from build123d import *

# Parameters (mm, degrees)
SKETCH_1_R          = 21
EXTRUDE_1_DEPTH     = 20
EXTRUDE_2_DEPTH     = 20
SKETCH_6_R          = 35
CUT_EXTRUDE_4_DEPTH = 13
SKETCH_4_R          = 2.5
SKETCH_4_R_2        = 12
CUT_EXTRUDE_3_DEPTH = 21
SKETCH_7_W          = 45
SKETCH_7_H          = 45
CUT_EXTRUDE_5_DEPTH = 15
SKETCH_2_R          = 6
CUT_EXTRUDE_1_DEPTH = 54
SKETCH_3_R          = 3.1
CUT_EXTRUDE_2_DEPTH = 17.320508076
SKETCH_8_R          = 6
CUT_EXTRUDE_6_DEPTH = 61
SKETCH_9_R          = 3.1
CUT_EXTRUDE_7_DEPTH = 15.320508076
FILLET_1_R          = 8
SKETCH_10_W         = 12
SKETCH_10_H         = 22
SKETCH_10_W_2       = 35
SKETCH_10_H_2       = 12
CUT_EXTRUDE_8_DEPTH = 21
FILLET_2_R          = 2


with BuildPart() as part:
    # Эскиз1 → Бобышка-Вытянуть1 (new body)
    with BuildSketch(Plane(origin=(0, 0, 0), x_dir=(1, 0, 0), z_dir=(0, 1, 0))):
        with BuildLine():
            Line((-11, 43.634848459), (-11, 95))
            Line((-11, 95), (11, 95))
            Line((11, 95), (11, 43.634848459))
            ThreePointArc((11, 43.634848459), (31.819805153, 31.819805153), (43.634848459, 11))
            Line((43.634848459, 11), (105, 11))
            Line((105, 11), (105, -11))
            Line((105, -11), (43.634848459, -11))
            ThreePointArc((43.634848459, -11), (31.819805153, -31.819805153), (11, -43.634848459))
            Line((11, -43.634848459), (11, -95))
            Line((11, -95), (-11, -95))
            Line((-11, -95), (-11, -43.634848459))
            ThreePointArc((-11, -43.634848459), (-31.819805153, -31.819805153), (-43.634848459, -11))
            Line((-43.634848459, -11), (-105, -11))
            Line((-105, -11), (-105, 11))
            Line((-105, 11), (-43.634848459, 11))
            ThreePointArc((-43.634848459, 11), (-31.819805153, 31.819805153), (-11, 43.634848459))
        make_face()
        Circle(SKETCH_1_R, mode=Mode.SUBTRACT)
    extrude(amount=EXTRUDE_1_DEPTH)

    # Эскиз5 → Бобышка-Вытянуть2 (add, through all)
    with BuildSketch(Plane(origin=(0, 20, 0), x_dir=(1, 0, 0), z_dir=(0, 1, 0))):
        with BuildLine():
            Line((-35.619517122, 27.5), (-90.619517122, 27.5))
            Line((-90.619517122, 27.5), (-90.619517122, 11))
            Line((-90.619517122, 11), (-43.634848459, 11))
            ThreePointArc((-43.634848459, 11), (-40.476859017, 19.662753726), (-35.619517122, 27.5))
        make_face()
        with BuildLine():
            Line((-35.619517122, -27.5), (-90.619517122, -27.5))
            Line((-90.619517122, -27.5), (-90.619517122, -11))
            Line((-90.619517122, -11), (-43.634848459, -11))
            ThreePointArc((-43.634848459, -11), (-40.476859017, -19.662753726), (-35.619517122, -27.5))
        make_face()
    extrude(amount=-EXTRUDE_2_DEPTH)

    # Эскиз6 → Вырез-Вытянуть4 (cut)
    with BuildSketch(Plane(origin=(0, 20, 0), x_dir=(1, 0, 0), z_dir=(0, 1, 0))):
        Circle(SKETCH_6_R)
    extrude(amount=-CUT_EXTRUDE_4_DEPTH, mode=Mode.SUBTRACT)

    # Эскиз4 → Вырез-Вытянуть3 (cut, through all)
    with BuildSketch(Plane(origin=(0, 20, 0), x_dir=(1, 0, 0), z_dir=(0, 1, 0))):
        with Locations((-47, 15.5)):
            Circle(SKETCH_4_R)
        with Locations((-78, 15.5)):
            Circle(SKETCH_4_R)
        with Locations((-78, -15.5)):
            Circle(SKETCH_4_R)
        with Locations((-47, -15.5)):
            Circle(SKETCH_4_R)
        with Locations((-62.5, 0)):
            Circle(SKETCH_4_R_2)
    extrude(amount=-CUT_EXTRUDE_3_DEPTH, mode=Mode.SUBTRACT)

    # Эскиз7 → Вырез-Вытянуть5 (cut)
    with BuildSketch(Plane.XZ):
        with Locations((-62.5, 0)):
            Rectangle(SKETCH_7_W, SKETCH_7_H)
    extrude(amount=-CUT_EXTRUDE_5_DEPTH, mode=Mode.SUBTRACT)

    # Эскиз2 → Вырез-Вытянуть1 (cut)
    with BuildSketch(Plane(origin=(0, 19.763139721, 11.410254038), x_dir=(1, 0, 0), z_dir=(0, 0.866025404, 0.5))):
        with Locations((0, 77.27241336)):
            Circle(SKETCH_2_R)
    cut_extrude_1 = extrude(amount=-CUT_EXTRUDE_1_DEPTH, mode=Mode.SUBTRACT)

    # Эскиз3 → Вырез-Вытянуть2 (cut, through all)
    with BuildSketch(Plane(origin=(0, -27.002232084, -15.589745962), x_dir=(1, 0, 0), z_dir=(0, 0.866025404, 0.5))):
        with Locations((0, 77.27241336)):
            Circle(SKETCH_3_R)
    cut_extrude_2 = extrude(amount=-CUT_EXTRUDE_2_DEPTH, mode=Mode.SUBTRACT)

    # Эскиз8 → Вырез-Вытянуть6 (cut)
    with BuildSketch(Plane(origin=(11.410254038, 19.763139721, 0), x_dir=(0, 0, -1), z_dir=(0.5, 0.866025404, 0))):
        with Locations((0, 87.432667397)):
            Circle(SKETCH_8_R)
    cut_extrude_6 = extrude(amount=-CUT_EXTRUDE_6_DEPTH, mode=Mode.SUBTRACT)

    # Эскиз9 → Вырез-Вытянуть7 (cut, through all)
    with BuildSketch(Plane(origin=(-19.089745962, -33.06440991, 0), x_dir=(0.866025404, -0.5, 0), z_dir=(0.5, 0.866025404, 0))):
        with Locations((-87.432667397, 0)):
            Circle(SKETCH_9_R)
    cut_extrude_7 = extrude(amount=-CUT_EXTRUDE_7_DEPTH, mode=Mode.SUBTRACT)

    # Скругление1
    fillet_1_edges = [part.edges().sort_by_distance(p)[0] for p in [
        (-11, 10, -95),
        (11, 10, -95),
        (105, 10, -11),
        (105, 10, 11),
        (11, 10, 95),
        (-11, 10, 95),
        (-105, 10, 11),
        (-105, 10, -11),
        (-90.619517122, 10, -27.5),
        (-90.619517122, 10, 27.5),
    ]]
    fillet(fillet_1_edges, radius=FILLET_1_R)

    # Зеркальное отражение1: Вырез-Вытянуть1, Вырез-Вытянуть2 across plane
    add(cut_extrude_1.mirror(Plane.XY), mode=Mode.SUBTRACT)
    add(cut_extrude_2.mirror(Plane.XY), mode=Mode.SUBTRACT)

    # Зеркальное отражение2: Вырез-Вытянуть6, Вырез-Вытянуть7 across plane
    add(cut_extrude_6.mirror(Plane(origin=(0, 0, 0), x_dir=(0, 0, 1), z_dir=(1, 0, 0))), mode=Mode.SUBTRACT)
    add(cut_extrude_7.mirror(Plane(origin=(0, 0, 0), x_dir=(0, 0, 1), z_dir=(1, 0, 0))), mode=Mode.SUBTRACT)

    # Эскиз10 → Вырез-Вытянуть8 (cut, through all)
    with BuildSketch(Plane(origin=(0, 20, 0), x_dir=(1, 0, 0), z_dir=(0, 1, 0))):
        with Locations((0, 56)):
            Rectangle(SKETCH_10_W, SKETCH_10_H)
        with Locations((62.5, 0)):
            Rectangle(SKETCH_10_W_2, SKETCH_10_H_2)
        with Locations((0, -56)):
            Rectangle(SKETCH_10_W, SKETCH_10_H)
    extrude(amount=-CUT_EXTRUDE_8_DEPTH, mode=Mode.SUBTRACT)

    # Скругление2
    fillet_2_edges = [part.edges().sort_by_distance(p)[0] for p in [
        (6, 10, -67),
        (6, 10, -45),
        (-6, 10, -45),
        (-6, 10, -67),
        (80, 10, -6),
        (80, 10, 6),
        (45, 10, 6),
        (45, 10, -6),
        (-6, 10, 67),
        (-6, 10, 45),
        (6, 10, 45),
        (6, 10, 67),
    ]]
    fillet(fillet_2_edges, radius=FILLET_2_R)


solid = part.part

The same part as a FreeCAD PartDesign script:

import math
import FreeCAD as App
import Part
import Sketcher
from FreeCAD import Vector
Q = App.Units.Quantity


def edges_at(feature, points):
    """Names of the edges that pass closest to the given points."""
    edges = feature.Shape.Edges
    near = lambda p: min(range(len(edges)), key=lambda i: edges[i].distToShape(Part.Vertex(*p))[0])
    return sorted({f"Edge{near(p) + 1}" for p in points})


def add_polygon(sketch, points):
    """Adds a closed chain of lines whose ends are joined by coincident constraints."""
    first, n = sketch.GeometryCount, len(points)
    for a, b in zip(points, points[1:] + points[:1]):
        sketch.addGeometry(Part.LineSegment(App.Vector(*a, 0), App.Vector(*b, 0)), False)
    for i in range(n):
        sketch.addConstraint(Sketcher.Constraint("Coincident", first + i, 2, first + (i + 1) % n, 1))

doc = App.newDocument("Part")
body = doc.addObject("PartDesign::Body", "Body")

# Sketch on XZ plane
sketch1 = doc.addObject("Sketcher::SketchObject", "Sketch")
body.addObject(sketch1)
sketch1.AttachmentSupport = (doc.XZ_Plane, [""])
sketch1.MapMode = "FlatFace"
sketch1.addGeometry(Part.LineSegment(Vector(-11, -95, 0), Vector(-11, -43.634848, 0)), False)
sketch1.addGeometry(Part.ArcOfCircle(Part.Circle(Vector(0, 0, 0), Vector(0, 0, 1), 45), math.radians(-165.850995), math.radians(-104.149005)), False)
sketch1.addGeometry(Part.LineSegment(Vector(-43.634848, -11, 0), Vector(-105, -11, 0)), False)
sketch1.addGeometry(Part.LineSegment(Vector(-105, -11, 0), Vector(-105, 11, 0)), False)
sketch1.addGeometry(Part.LineSegment(Vector(-105, 11, 0), Vector(-43.634848, 11, 0)), False)
sketch1.addGeometry(Part.ArcOfCircle(Part.Circle(Vector(0, 0, 0), Vector(0, 0, 1), 45), math.radians(104.149005), math.radians(165.850995)), False)
sketch1.addGeometry(Part.LineSegment(Vector(-11, 43.634848, 0), Vector(-11, 95, 0)), False)
sketch1.addGeometry(Part.LineSegment(Vector(-11, 95, 0), Vector(11, 95, 0)), False)
sketch1.addGeometry(Part.LineSegment(Vector(11, 95, 0), Vector(11, 43.634848, 0)), False)
sketch1.addGeometry(Part.ArcOfCircle(Part.Circle(Vector(0, 0, 0), Vector(0, 0, 1), 45), math.radians(14.149005), math.radians(75.850995)), False)
sketch1.addGeometry(Part.LineSegment(Vector(43.634848, 11, 0), Vector(105, 11, 0)), False)
sketch1.addGeometry(Part.LineSegment(Vector(105, 11, 0), Vector(105, -11, 0)), False)
sketch1.addGeometry(Part.LineSegment(Vector(105, -11, 0), Vector(43.634848, -11, 0)), False)
sketch1.addGeometry(Part.ArcOfCircle(Part.Circle(Vector(0, 0, 0), Vector(0, 0, 1), 45), math.radians(-75.850995), math.radians(-14.149005)), False)
sketch1.addGeometry(Part.LineSegment(Vector(11, -43.634848, 0), Vector(11, -95, 0)), False)
sketch1.addGeometry(Part.LineSegment(Vector(11, -95, 0), Vector(-11, -95, 0)), False)
sketch1.addGeometry(Part.Circle(Vector(0, 0, 0), Vector(0, 0, 1), 21), False)
sketch1.addConstraint(Sketcher.Constraint("Coincident", 0, 2, 1, 2))
sketch1.addConstraint(Sketcher.Constraint("Coincident", 1, 1, 2, 1))
sketch1.addConstraint(Sketcher.Constraint("Coincident", 2, 2, 3, 1))
sketch1.addConstraint(Sketcher.Constraint("Coincident", 3, 2, 4, 1))
sketch1.addConstraint(Sketcher.Constraint("Coincident", 4, 2, 5, 2))
sketch1.addConstraint(Sketcher.Constraint("Coincident", 5, 1, 6, 1))
sketch1.addConstraint(Sketcher.Constraint("Coincident", 6, 2, 7, 1))
sketch1.addConstraint(Sketcher.Constraint("Coincident", 7, 2, 8, 1))
sketch1.addConstraint(Sketcher.Constraint("Coincident", 8, 2, 9, 2))
sketch1.addConstraint(Sketcher.Constraint("Coincident", 9, 1, 10, 1))
sketch1.addConstraint(Sketcher.Constraint("Coincident", 10, 2, 11, 1))
sketch1.addConstraint(Sketcher.Constraint("Coincident", 11, 2, 12, 1))
sketch1.addConstraint(Sketcher.Constraint("Coincident", 12, 2, 13, 2))
sketch1.addConstraint(Sketcher.Constraint("Coincident", 13, 1, 14, 1))
sketch1.addConstraint(Sketcher.Constraint("Coincident", 14, 2, 15, 1))
sketch1.addConstraint(Sketcher.Constraint("Coincident", 15, 2, 0, 1))
sketch1.addConstraint(Sketcher.Constraint("Vertical", 0))
sketch1.addConstraint(Sketcher.Constraint("Horizontal", 2))
sketch1.addConstraint(Sketcher.Constraint("Vertical", 3))
sketch1.addConstraint(Sketcher.Constraint("Horizontal", 4))
sketch1.addConstraint(Sketcher.Constraint("Vertical", 6))
sketch1.addConstraint(Sketcher.Constraint("Horizontal", 7))
sketch1.addConstraint(Sketcher.Constraint("Vertical", 8))
sketch1.addConstraint(Sketcher.Constraint("Horizontal", 10))
sketch1.addConstraint(Sketcher.Constraint("Vertical", 11))
sketch1.addConstraint(Sketcher.Constraint("Horizontal", 12))
sketch1.addConstraint(Sketcher.Constraint("Vertical", 14))
sketch1.addConstraint(Sketcher.Constraint("Horizontal", 15))
sketch1.addConstraint(Sketcher.Constraint("Coincident", 1, 3, -1, 1))
sketch1.addConstraint(Sketcher.Constraint("Coincident", 5, 3, -1, 1))
sketch1.addConstraint(Sketcher.Constraint("Coincident", 9, 3, -1, 1))
sketch1.addConstraint(Sketcher.Constraint("Coincident", 13, 3, -1, 1))
sketch1.addConstraint(Sketcher.Constraint("Coincident", 16, 3, -1, 1))
sketch1.addConstraint(Sketcher.Constraint("Equal", 1, 5))
sketch1.addConstraint(Sketcher.Constraint("Equal", 5, 9))
sketch1.addConstraint(Sketcher.Constraint("Equal", 9, 13))
sketch1.addConstraint(Sketcher.Constraint("Symmetric", 2, 2, 10, 2, -1, 1))
sketch1.addConstraint(Sketcher.Constraint("Symmetric", 6, 2, 14, 2, -1, 1))
sketch1.addConstraint(Sketcher.Constraint("Horizontal", 5, 1, 8, 2))
sketch1.addConstraint(Sketcher.Constraint("Horizontal", 4, 2, 9, 1))
sketch1.addConstraint(Sketcher.Constraint("Horizontal", 2, 2, 11, 2))
sketch1.addConstraint(Sketcher.Constraint("Horizontal", 0, 2, 13, 1))
sketch1.addConstraint(Sketcher.Constraint("Equal", 15, 3))
sketch1.addConstraint(Sketcher.Constraint("Diameter", 16, Q("42 mm")))
sketch1.addConstraint(Sketcher.Constraint("Radius", 1, Q("45 mm")))
sketch1.addConstraint(Sketcher.Constraint("DistanceX", 7, 1, 7, 2, Q("22 mm")))
sketch1.addConstraint(Sketcher.Constraint("DistanceX", 2, 2, -1, 1, Q("105 mm")))
sketch1.addConstraint(Sketcher.Constraint("DistanceY", -1, 1, 6, 2, Q("95 mm")))
pad1 = doc.addObject("PartDesign::Pad", "Pad")
body.addObject(pad1)
pad1.Profile = sketch1
pad1.Length = 20
pad1.Reversed = True

# Sketch on XZ plane
sketch2 = doc.addObject("Sketcher::SketchObject", "Sketch001")
body.addObject(sketch2)
sketch2.AttachmentSupport = (doc.XZ_Plane, [""])
sketch2.MapMode = "FlatFace"
sketch2.AttachmentOffset = App.Placement(Vector(0, 0, -20), App.Rotation())
sketch2.addGeometry(Part.LineSegment(Vector(-35.619517, -27.5, 0), Vector(-90.619517, -27.5, 0)), False)
sketch2.addGeometry(Part.LineSegment(Vector(-90.619517, -27.5, 0), Vector(-90.619517, -11, 0)), False)
sketch2.addGeometry(Part.LineSegment(Vector(-90.619517, -11, 0), Vector(-43.634848, -11, 0)), False)
sketch2.addGeometry(Part.ArcOfCircle(Part.Circle(Vector(0, 0, 0), Vector(0, 0, 1), 45), math.radians(-165.850995), math.radians(-142.330113)), False)
sketch2.addGeometry(Part.LineSegment(Vector(-90.619517, 27.5, 0), Vector(-35.619517, 27.5, 0)), False)
sketch2.addGeometry(Part.ArcOfCircle(Part.Circle(Vector(0, 0, 0), Vector(0, 0, 1), 45), math.radians(142.330113), math.radians(165.850995)), False)
sketch2.addGeometry(Part.LineSegment(Vector(-43.634848, 11, 0), Vector(-90.619517, 11, 0)), False)
sketch2.addGeometry(Part.LineSegment(Vector(-90.619517, 11, 0), Vector(-90.619517, 27.5, 0)), False)
sketch2.addConstraint(Sketcher.Constraint("Coincident", 0, 2, 1, 1))
sketch2.addConstraint(Sketcher.Constraint("Coincident", 1, 2, 2, 1))
sketch2.addConstraint(Sketcher.Constraint("Coincident", 2, 2, 3, 1))
sketch2.addConstraint(Sketcher.Constraint("Coincident", 3, 2, 0, 1))
sketch2.addConstraint(Sketcher.Constraint("Coincident", 4, 2, 5, 1))
sketch2.addConstraint(Sketcher.Constraint("Coincident", 5, 2, 6, 1))
sketch2.addConstraint(Sketcher.Constraint("Coincident", 6, 2, 7, 1))
sketch2.addConstraint(Sketcher.Constraint("Coincident", 7, 2, 4, 1))
sketch2.addConstraint(Sketcher.Constraint("Horizontal", 0))
sketch2.addConstraint(Sketcher.Constraint("Vertical", 1))
sketch2.addConstraint(Sketcher.Constraint("Horizontal", 2))
sketch2.addConstraint(Sketcher.Constraint("Horizontal", 4))
sketch2.addConstraint(Sketcher.Constraint("Horizontal", 6))
sketch2.addConstraint(Sketcher.Constraint("Vertical", 7))
sketch2.addConstraint(Sketcher.Constraint("Coincident", 3, 3, -1, 1))
sketch2.addConstraint(Sketcher.Constraint("Coincident", 5, 3, -1, 1))
sketch2.addConstraint(Sketcher.Constraint("Equal", 3, 5))
sketch2.addConstraint(Sketcher.Constraint("Symmetric", 1, 2, 6, 2, -1))
sketch2.addConstraint(Sketcher.Constraint("Vertical", 3, 2, 4, 2))
sketch2.addConstraint(Sketcher.Constraint("Radius", 3, Q("45 mm")))
sketch2.addConstraint(Sketcher.Constraint("DistanceX", 0, 2, 0, 1, Q("55 mm")))
sketch2.addConstraint(Sketcher.Constraint("DistanceY", 1, 1, 1, 2, Q("16.5 mm")))
sketch2.addConstraint(Sketcher.Constraint("DistanceY", 1, 2, -1, 1, Q("11 mm")))
pad2 = doc.addObject("PartDesign::Pad", "Pad001")
body.addObject(pad2)
pad2.Profile = sketch2
pad2.Type = "UpToLast"

# Sketch on XZ plane
sketch3 = doc.addObject("Sketcher::SketchObject", "Sketch002")
body.addObject(sketch3)
sketch3.AttachmentSupport = (doc.XZ_Plane, [""])
sketch3.MapMode = "FlatFace"
sketch3.AttachmentOffset = App.Placement(Vector(0, 0, -20), App.Rotation())
sketch3.addGeometry(Part.Circle(Vector(0, 0, 0), Vector(0, 0, 1), 35), False)
sketch3.addConstraint(Sketcher.Constraint("Coincident", 0, 3, -1, 1))
sketch3.addConstraint(Sketcher.Constraint("Diameter", 0, Q("70 mm")))
pocket1 = doc.addObject("PartDesign::Pocket", "Pocket")
body.addObject(pocket1)
pocket1.Profile = sketch3
pocket1.Length = 13
pocket1.Reversed = True

# Sketch on XZ plane
sketch4 = doc.addObject("Sketcher::SketchObject", "Sketch003")
body.addObject(sketch4)
sketch4.AttachmentSupport = (doc.XZ_Plane, [""])
sketch4.MapMode = "FlatFace"
sketch4.AttachmentOffset = App.Placement(Vector(0, 0, -20), App.Rotation())
sketch4.addGeometry(Part.Circle(Vector(-47, -15.5, 0), Vector(0, 0, 1), 2.5), False)
sketch4.addGeometry(Part.Circle(Vector(-78, -15.5, 0), Vector(0, 0, 1), 2.5), False)
sketch4.addGeometry(Part.Circle(Vector(-78, 15.5, 0), Vector(0, 0, 1), 2.5), False)
sketch4.addGeometry(Part.Circle(Vector(-47, 15.5, 0), Vector(0, 0, 1), 2.5), False)
sketch4.addGeometry(Part.Circle(Vector(-62.5, 0, 0), Vector(0, 0, 1), 12), False)
sketch4.addConstraint(Sketcher.Constraint("Equal", 0, 1))
sketch4.addConstraint(Sketcher.Constraint("Equal", 1, 2))
sketch4.addConstraint(Sketcher.Constraint("Equal", 2, 3))
sketch4.addConstraint(Sketcher.Constraint("Symmetric", 1, 3, 2, 3, -1))
sketch4.addConstraint(Sketcher.Constraint("Symmetric", 0, 3, 3, 3, -1))
sketch4.addConstraint(Sketcher.Constraint("PointOnObject", 4, 3, -1))
sketch4.addConstraint(Sketcher.Constraint("Horizontal", 0, 3, 1, 3))
sketch4.addConstraint(Sketcher.Constraint("Diameter", 0, Q("5 mm")))
sketch4.addConstraint(Sketcher.Constraint("Diameter", 4, Q("24 mm")))
sketch4.addConstraint(Sketcher.Constraint("DistanceX", 0, 3, -1, 1, Q("47 mm")))
sketch4.addConstraint(Sketcher.Constraint("DistanceX", 1, 3, -1, 1, Q("78 mm")))
sketch4.addConstraint(Sketcher.Constraint("DistanceY", 1, 3, 2, 3, Q("31 mm")))
sketch4.addConstraint(Sketcher.Constraint("DistanceX", 4, 3, -1, 1, Q("62.5 mm")))
pocket2 = doc.addObject("PartDesign::Pocket", "Pocket001")
body.addObject(pocket2)
pocket2.Profile = sketch4
pocket2.Type = "ThroughAll"
pocket2.Reversed = True

# Sketch on XZ plane
sketch5 = doc.addObject("Sketcher::SketchObject", "Sketch004")
body.addObject(sketch5)
sketch5.AttachmentSupport = (doc.XZ_Plane, [""])
sketch5.MapMode = "FlatFace"
add_polygon(sketch5, [(-85, 22.5), (-85, -22.5), (-40, -22.5), (-40, 22.5)])  # lines 0-3
sketch5.addConstraint(Sketcher.Constraint("Vertical", 0))
sketch5.addConstraint(Sketcher.Constraint("Horizontal", 1))
sketch5.addConstraint(Sketcher.Constraint("Vertical", 2))
sketch5.addConstraint(Sketcher.Constraint("Horizontal", 3))
sketch5.addConstraint(Sketcher.Constraint("Equal", 3, 0))
sketch5.addConstraint(Sketcher.Constraint("DistanceX", 1, 1, 1, 2, Q("45 mm")))
sketch5.addConstraint(Sketcher.Constraint("DistanceX", 0, 2, -1, 1, Q("85 mm")))
sketch5.addConstraint(Sketcher.Constraint("DistanceY", 0, 2, -1, 1, Q("22.5 mm")))
pocket3 = doc.addObject("PartDesign::Pocket", "Pocket002")
body.addObject(pocket3)
pocket3.Profile = sketch5
pocket3.Length = 15

# Sketch on an angled plane
sketch6 = doc.addObject("Sketcher::SketchObject", "Sketch005")
body.addObject(sketch6)
sketch6.Placement = App.Placement(Vector(0, 19.76314, 11.410254), App.Rotation(Vector(1, 0, 0), Vector(0, 0.5, -0.866025404), Vector(0, 0.866025404, 0.5), "ZXY"))
sketch6.addGeometry(Part.Circle(Vector(0, 77.272413, 0), Vector(0, 0, 1), 6), False)
sketch6.addConstraint(Sketcher.Constraint("PointOnObject", 0, 3, -2))
sketch6.addConstraint(Sketcher.Constraint("Diameter", 0, Q("12 mm")))
sketch6.addConstraint(Sketcher.Constraint("DistanceY", -1, 1, 0, 3, Q("77.272413 mm")))
pocket4 = doc.addObject("PartDesign::Pocket", "Pocket003")
body.addObject(pocket4)
pocket4.Profile = sketch6
pocket4.Length = 54

# Sketch on an angled plane
sketch7 = doc.addObject("Sketcher::SketchObject", "Sketch006")
body.addObject(sketch7)
sketch7.Placement = App.Placement(Vector(0, -27.002232, -15.589746), App.Rotation(Vector(1, 0, 0), Vector(0, 0.5, -0.866025404), Vector(0, 0.866025404, 0.5), "ZXY"))
sketch7.addGeometry(Part.Circle(Vector(0, 77.272413, 0), Vector(0, 0, 1), 3.1), False)
sketch7.addConstraint(Sketcher.Constraint("PointOnObject", 0, 3, -2))
sketch7.addConstraint(Sketcher.Constraint("Diameter", 0, Q("6.2 mm")))
sketch7.addConstraint(Sketcher.Constraint("DistanceY", -1, 1, 0, 3, Q("77.272413 mm")))
pocket5 = doc.addObject("PartDesign::Pocket", "Pocket004")
body.addObject(pocket5)
pocket5.Profile = sketch7
pocket5.Type = "ThroughAll"

# Sketch on an angled plane
sketch8 = doc.addObject("Sketcher::SketchObject", "Sketch007")
body.addObject(sketch8)
sketch8.Placement = App.Placement(Vector(11.410254, 19.76314, 0), App.Rotation(Vector(0, 0, -1), Vector(-0.866025404, 0.5, 0), Vector(0.5, 0.866025404, 0), "ZXY"))
sketch8.addGeometry(Part.Circle(Vector(0, 87.432667, 0), Vector(0, 0, 1), 6), False)
sketch8.addConstraint(Sketcher.Constraint("PointOnObject", 0, 3, -2))
sketch8.addConstraint(Sketcher.Constraint("Diameter", 0, Q("12 mm")))
sketch8.addConstraint(Sketcher.Constraint("DistanceY", -1, 1, 0, 3, Q("87.432667 mm")))
pocket6 = doc.addObject("PartDesign::Pocket", "Pocket005")
body.addObject(pocket6)
pocket6.Profile = sketch8
pocket6.Length = 61

# Sketch on an angled plane
sketch9 = doc.addObject("Sketcher::SketchObject", "Sketch008")
body.addObject(sketch9)
sketch9.Placement = App.Placement(Vector(-19.089746, -33.06441, 0), App.Rotation(Vector(0.866025404, -0.5, 0), Vector(0, 0, -1), Vector(0.5, 0.866025404, 0), "ZXY"))
sketch9.addGeometry(Part.Circle(Vector(-87.432667, 0, 0), Vector(0, 0, 1), 3.1), False)
sketch9.addConstraint(Sketcher.Constraint("PointOnObject", 0, 3, -1))
sketch9.addConstraint(Sketcher.Constraint("Diameter", 0, Q("6.2 mm")))
sketch9.addConstraint(Sketcher.Constraint("DistanceX", 0, 3, -1, 1, Q("87.432667 mm")))
pocket7 = doc.addObject("PartDesign::Pocket", "Pocket006")
body.addObject(pocket7)
pocket7.Profile = sketch9
pocket7.Type = "ThroughAll"
doc.recompute()

fillet = doc.addObject("PartDesign::Fillet", "Fillet")
body.addObject(fillet)
fillet.Base = (pocket7, edges_at(pocket7, [
    (-11, 10, -95),
    (11, 10, -95),
    (105, 10, -11),
    (105, 10, 11),
    (11, 10, 95),
    (-11, 10, 95),
    (-105, 10, 11),
    (-105, 10, -11),
    (-90.62, 10, -27.5),
    (-90.62, 10, 27.5),
]))
fillet.Radius = 8
doc.recompute()

mirrored = doc.addObject("PartDesign::Mirrored", "Mirrored")
body.addObject(mirrored)
mirrored.Originals = [pocket4, pocket5]
mirrored.MirrorPlane = (doc.XY_Plane, [""])
body.Tip = mirrored
doc.recompute()

mirrored2 = doc.addObject("PartDesign::Mirrored", "Mirrored001")
body.addObject(mirrored2)
mirrored2.Originals = [pocket6, pocket7]
mirrored2.MirrorPlane = (doc.YZ_Plane, [""])
body.Tip = mirrored2

# Sketch on XZ plane
sketch10 = doc.addObject("Sketcher::SketchObject", "Sketch009")
body.addObject(sketch10)
sketch10.AttachmentSupport = (doc.XZ_Plane, [""])
sketch10.MapMode = "FlatFace"
sketch10.AttachmentOffset = App.Placement(Vector(0, 0, -20), App.Rotation())
add_polygon(sketch10, [(-6, -67), (-6, -45), (6, -45), (6, -67)])  # lines 0-3
add_polygon(sketch10, [(45, -6), (45, 6), (80, 6), (80, -6)])  # lines 4-7
add_polygon(sketch10, [(-6, 45), (-6, 67), (6, 67), (6, 45)])  # lines 8-11
sketch10.addConstraint(Sketcher.Constraint("Vertical", 0))
sketch10.addConstraint(Sketcher.Constraint("Horizontal", 1))
sketch10.addConstraint(Sketcher.Constraint("Vertical", 2))
sketch10.addConstraint(Sketcher.Constraint("Horizontal", 3))
sketch10.addConstraint(Sketcher.Constraint("Vertical", 4))
sketch10.addConstraint(Sketcher.Constraint("Horizontal", 5))
sketch10.addConstraint(Sketcher.Constraint("Vertical", 6))
sketch10.addConstraint(Sketcher.Constraint("Horizontal", 7))
sketch10.addConstraint(Sketcher.Constraint("Vertical", 8))
sketch10.addConstraint(Sketcher.Constraint("Horizontal", 9))
sketch10.addConstraint(Sketcher.Constraint("Vertical", 10))
sketch10.addConstraint(Sketcher.Constraint("Horizontal", 11))
sketch10.addConstraint(Sketcher.Constraint("Symmetric", 2, 2, 8, 2, -1, 1))
sketch10.addConstraint(Sketcher.Constraint("Symmetric", 0, 2, 10, 2, -1, 1))
sketch10.addConstraint(Sketcher.Constraint("Vertical", 3, 2, 8, 2))
sketch10.addConstraint(Sketcher.Constraint("Equal", 11, 4))
sketch10.addConstraint(Sketcher.Constraint("DistanceX", 1, 1, 1, 2, Q("12 mm")))
sketch10.addConstraint(Sketcher.Constraint("DistanceX", 5, 1, 5, 2, Q("35 mm")))
sketch10.addConstraint(Sketcher.Constraint("DistanceY", 0, 1, 0, 2, Q("22 mm")))
sketch10.addConstraint(Sketcher.Constraint("DistanceY", 0, 2, -1, 1, Q("45 mm")))
sketch10.addConstraint(Sketcher.Constraint("DistanceX", -1, 1, 4, 2, Q("45 mm")))
sketch10.addConstraint(Sketcher.Constraint("DistanceY", -1, 1, 4, 2, Q("6 mm")))
pocket8 = doc.addObject("PartDesign::Pocket", "Pocket007")
body.addObject(pocket8)
pocket8.Profile = sketch10
pocket8.Type = "ThroughAll"
pocket8.Reversed = True
doc.recompute()

fillet2 = doc.addObject("PartDesign::Fillet", "Fillet001")
body.addObject(fillet2)
fillet2.Base = (pocket8, edges_at(pocket8, [
    (6, 10, -67),
    (6, 10, -45),
    (-6, 10, -45),
    (-6, 10, -67),
    (80, 10, -6),
    (80, 10, 6),
    (45, 10, 6),
    (45, 10, -6),
    (-6, 10, 67),
    (-6, 10, 45),
    (6, 10, 45),
    (6, 10, 67),
]))
fillet2.Radius = 2

doc.recompute()
